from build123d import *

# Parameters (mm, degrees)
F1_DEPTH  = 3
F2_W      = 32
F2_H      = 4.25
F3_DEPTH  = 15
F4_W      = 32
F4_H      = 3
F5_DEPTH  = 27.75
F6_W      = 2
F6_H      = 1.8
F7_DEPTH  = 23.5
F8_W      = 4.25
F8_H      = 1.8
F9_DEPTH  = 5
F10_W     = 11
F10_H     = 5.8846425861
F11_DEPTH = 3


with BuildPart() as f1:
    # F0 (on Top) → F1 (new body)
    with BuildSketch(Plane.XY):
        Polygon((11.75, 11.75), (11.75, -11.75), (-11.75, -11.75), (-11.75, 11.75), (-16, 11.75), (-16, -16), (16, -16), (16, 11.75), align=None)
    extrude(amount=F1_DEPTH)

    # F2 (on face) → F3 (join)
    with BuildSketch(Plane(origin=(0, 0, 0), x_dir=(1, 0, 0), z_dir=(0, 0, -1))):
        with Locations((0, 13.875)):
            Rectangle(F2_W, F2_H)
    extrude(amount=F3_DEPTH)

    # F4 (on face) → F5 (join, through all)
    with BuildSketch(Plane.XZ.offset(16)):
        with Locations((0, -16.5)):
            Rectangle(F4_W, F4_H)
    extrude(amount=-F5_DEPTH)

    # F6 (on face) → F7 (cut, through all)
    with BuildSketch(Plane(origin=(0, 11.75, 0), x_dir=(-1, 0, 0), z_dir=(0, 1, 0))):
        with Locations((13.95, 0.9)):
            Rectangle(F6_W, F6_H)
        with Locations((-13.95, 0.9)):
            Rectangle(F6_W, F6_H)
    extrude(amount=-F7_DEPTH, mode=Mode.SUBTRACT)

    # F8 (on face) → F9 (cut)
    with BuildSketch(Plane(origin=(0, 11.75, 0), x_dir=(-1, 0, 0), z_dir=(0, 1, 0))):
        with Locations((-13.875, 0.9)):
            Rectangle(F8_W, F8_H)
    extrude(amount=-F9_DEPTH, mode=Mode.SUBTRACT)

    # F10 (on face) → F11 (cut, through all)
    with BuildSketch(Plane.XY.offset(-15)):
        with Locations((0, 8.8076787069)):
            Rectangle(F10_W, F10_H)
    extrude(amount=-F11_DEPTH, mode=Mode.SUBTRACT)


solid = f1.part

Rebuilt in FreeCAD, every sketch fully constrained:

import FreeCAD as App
import Part
import Sketcher

V = App.Vector
Q = App.Units.Quantity

doc = App.newDocument("Part")
params = doc.addObject("Spreadsheet::Sheet", "Params")
for row, (alias, value) in enumerate([
    ("sketch1_width", "32 mm"),
    ("sketch1_width2", "23.5 mm"),
    ("pad1_length", "3 mm"),
    ("sketch2_width", "32 mm"),
    ("sketch2_height", "4.25 mm"),
    ("pad2_length", "15 mm"),
    ("sketch3_width", "32 mm"),
    ("sketch3_height", "3 mm"),
    ("pad3_length", "27.75 mm"),
    ("sketch4_width", "2 mm"),
    ("sketch4_height", "1.8 mm"),
    ("pocket1_length", "23.5 mm"),
    ("sketch5_height", "1.8 mm"),
    ("sketch5_width", "4.25 mm"),
    ("pocket2_length", "5 mm"),
    ("sketch6_width", "11 mm"),
], start=1):
    params.set(f"A{row}", alias)
    params.set(f"B{row}", "=" + value)
    params.setAlias(f"B{row}", alias)

body = doc.addObject("PartDesign::Body", "Body")

sketch1 = body.newObject("Sketcher::SketchObject", "Sketch")
sketch1.AttachmentSupport = (doc.getObject("XY_Plane"), [""])
sketch1.MapMode = "FlatFace"
sketch1.addGeometry([
    Part.LineSegment(V(11.8, 11.8, 0), V(11.8, -11.8, 0)),
    Part.LineSegment(V(11.8, -11.8, 0), V(-11.8, -11.8, 0)),
    Part.LineSegment(V(-11.8, -11.8, 0), V(-11.8, 11.8, 0)),
    Part.LineSegment(V(-11.8, 11.8, 0), V(-16, 11.8, 0)),
    Part.LineSegment(V(-16, 11.8, 0), V(-16, -16, 0)),
    Part.LineSegment(V(-16, -16, 0), V(16, -16, 0)),
    Part.LineSegment(V(16, -16, 0), V(16, 11.8, 0)),
    Part.LineSegment(V(16, 11.8, 0), V(11.8, 11.8, 0)),
], False)
sketch1.addConstraint([
    Sketcher.Constraint("Coincident", 0, 2, 1, 1),
    Sketcher.Constraint("Coincident", 1, 2, 2, 1),
    Sketcher.Constraint("Coincident", 2, 2, 3, 1),
    Sketcher.Constraint("Coincident", 3, 2, 4, 1),
    Sketcher.Constraint("Coincident", 4, 2, 5, 1),
    Sketcher.Constraint("Coincident", 5, 2, 6, 1),
    Sketcher.Constraint("Coincident", 6, 2, 7, 1),
    Sketcher.Constraint("Coincident", 7, 2, 0, 1),
    Sketcher.Constraint("Vertical", 0),
    Sketcher.Constraint("Horizontal", 1),
    Sketcher.Constraint("Vertical", 2),
    Sketcher.Constraint("Horizontal", 3),
    Sketcher.Constraint("Vertical", 4),
    Sketcher.Constraint("Horizontal", 5),
    Sketcher.Constraint("Vertical", 6),
    Sketcher.Constraint("Horizontal", 7),
    Sketcher.Constraint("Symmetric", 0, 2, 2, 2, -1, 1),
    Sketcher.Constraint("Symmetric", 3, 2, 6, 2, -2),
    Sketcher.Constraint("Equal", 1, 0),
    Sketcher.Constraint("DistanceX", 5, 1, 5, 2, Q("32 mm")),
    Sketcher.Constraint("DistanceX", 1, 2, 1, 1, Q("23.5 mm")),
    Sketcher.Constraint("DistanceY", 4, 2, -1, 1, Q("16 mm")),
])
sketch1.setExpression("Constraints[19]", "Params.sketch1_width")
sketch1.setExpression("Constraints[20]", "Params.sketch1_width2")
pad1 = body.newObject("PartDesign::Pad", "Pad")
pad1.Profile = sketch1
pad1.setExpression("Length", "Params.pad1_length")

sketch2 = body.newObject("Sketcher::SketchObject", "Sketch001")
sketch2.AttachmentSupport = (doc.getObject("XY_Plane"), [""])
sketch2.MapMode = "FlatFace"
sketch2.addGeometry([
    Part.LineSegment(V(-16, -16, 0), V(-16, -11.8, 0)),
    Part.LineSegment(V(-16, -11.8, 0), V(16, -11.8, 0)),
    Part.LineSegment(V(16, -11.8, 0), V(16, -16, 0)),
    Part.LineSegment(V(16, -16, 0), V(-16, -16, 0)),
], False)
sketch2.addConstraint([
    Sketcher.Constraint("Coincident", 0, 2, 1, 1),
    Sketcher.Constraint("Coincident", 1, 2, 2, 1),
    Sketcher.Constraint("Coincident", 2, 2, 3, 1),
    Sketcher.Constraint("Coincident", 3, 2, 0, 1),
    Sketcher.Constraint("Vertical", 0),
    Sketcher.Constraint("Horizontal", 1),
    Sketcher.Constraint("Vertical", 2),
    Sketcher.Constraint("Horizontal", 3),
    Sketcher.Constraint("DistanceX", 1, 1, 1, 2, Q("32 mm")),
    Sketcher.Constraint("DistanceX", 0, 2, -1, 1, Q("16 mm")),
    Sketcher.Constraint("DistanceY", 2, 2, -1, 1, Q("16 mm")),
    Sketcher.Constraint("DistanceY", 0, 1, 0, 2, Q("4.25 mm")),
])
sketch2.setExpression("Constraints[8]", "Params.sketch2_width")
sketch2.setExpression("Constraints[11]", "Params.sketch2_height")
pad2 = body.newObject("PartDesign::Pad", "Pad001")
pad2.Profile = sketch2
pad2.setExpression("Length", "Params.pad2_length")
pad2.Reversed = True

sketch3 = body.newObject("Sketcher::SketchObject", "Sketch002")
sketch3.AttachmentSupport = (doc.getObject("XZ_Plane"), [""])
sketch3.MapMode = "FlatFace"
sketch3.AttachmentOffset = App.Placement(V(0, 0, 16), App.Rotation())
sketch3.addGeometry([
    Part.LineSegment(V(-16, -15, 0), V(-16, -18, 0)),
    Part.LineSegment(V(-16, -18, 0), V(16, -18, 0)),
    Part.LineSegment(V(16, -18, 0), V(16, -15, 0)),
    Part.LineSegment(V(16, -15, 0), V(-16, -15, 0)),
], False)
sketch3.addConstraint([
    Sketcher.Constraint("Coincident", 0, 2, 1, 1),
    Sketcher.Constraint("Coincident", 1, 2, 2, 1),
    Sketcher.Constraint("Coincident", 2, 2, 3, 1),
    Sketcher.Constraint("Coincident", 3, 2, 0, 1),
    Sketcher.Constraint("Vertical", 0),
    Sketcher.Constraint("Horizontal", 1),
    Sketcher.Constraint("Vertical", 2),
    Sketcher.Constraint("Horizontal", 3),
    Sketcher.Constraint("DistanceX", 1, 1, 1, 2, Q("32 mm")),
    Sketcher.Constraint("DistanceY", 0, 2, 0, 1, Q("3 mm")),
    Sketcher.Constraint("DistanceX", 0, 2, -1, 1, Q("16 mm")),
    Sketcher.Constraint("DistanceY", 0, 2, -1, 1, Q("18 mm")),
])
sketch3.setExpression("Constraints[8]", "Params.sketch3_width")
sketch3.setExpression("Constraints[9]", "Params.sketch3_height")
pad3 = body.newObject("PartDesign::Pad", "Pad002")
pad3.Profile = sketch3
pad3.setExpression("Length", "Params.pad3_length")
pad3.Reversed = True

sketch4 = body.newObject("Sketcher::SketchObject", "Sketch003")
sketch4.AttachmentSupport = (doc.getObject("XZ_Plane"), [""])
sketch4.MapMode = "FlatFace"
sketch4.AttachmentOffset = App.Placement(V(0, 0, -11.75), App.Rotation())
sketch4.addGeometry([
    Part.LineSegment(V(-12.9, 1.8, 0), V(-12.9, 0, 0)),
    Part.LineSegment(V(-12.9, 0, 0), V(-14.9, 0, 0)),
    Part.LineSegment(V(-14.9, 0, 0), V(-14.9, 1.8, 0)),
    Part.LineSegment(V(-14.9, 1.8, 0), V(-12.9, 1.8, 0)),
    Part.LineSegment(V(14.9, 1.8, 0), V(14.9, 0, 0)),
    Part.LineSegment(V(14.9, 0, 0), V(12.9, 0, 0)),
    Part.LineSegment(V(12.9, 0, 0), V(12.9, 1.8, 0)),
    Part.LineSegment(V(12.9, 1.8, 0), V(14.9, 1.8, 0)),
], False)
sketch4.addConstraint([
    Sketcher.Constraint("Coincident", 0, 2, 1, 1),
    Sketcher.Constraint("Coincident", 1, 2, 2, 1),
    Sketcher.Constraint("Coincident", 2, 2, 3, 1),
    Sketcher.Constraint("Coincident", 3, 2, 0, 1),
    Sketcher.Constraint("Coincident", 4, 2, 5, 1),
    Sketcher.Constraint("Coincident", 5, 2, 6, 1),
    Sketcher.Constraint("Coincident", 6, 2, 7, 1),
    Sketcher.Constraint("Coincident", 7, 2, 4, 1),
    Sketcher.Constraint("Vertical", 0),
    Sketcher.Constraint("Horizontal", 1),
    Sketcher.Constraint("Vertical", 2),
    Sketcher.Constraint("Horizontal", 3),
    Sketcher.Constraint("Vertical", 4),
    Sketcher.Constraint("Horizontal", 5),
    Sketcher.Constraint("Vertical", 6),
    Sketcher.Constraint("Horizontal", 7),
    Sketcher.Constraint("Symmetric", 1, 2, 4, 2, -1, 1),
    Sketcher.Constraint("Symmetric", 0, 2, 5, 2, -2),
    Sketcher.Constraint("Horizontal", 3, 2, 6, 2),
    Sketcher.Constraint("DistanceX", 1, 2, 1, 1, Q("2 mm")),
    Sketcher.Constraint("DistanceY", 0, 2, 0, 1, Q("1.8 mm")),
    Sketcher.Constraint("DistanceX", 0, 2, 4, 2, Q("27.9 mm")),
])
sketch4.setExpression("Constraints[19]", "Params.sketch4_width")
sketch4.setExpression("Constraints[20]", "Params.sketch4_height")
pocket1 = body.newObject("PartDesign::Pocket", "Pocket")
pocket1.Profile = sketch4
pocket1.setExpression("Length", "Params.pocket1_length")
pocket1.Reversed = True

sketch5 = body.newObject("Sketcher::SketchObject", "Sketch004")
sketch5.AttachmentSupport = (doc.getObject("XZ_Plane"), [""])
sketch5.MapMode = "FlatFace"
sketch5.AttachmentOffset = App.Placement(V(0, 0, -11.75), App.Rotation())
sketch5.addGeometry([
    Part.LineSegment(V(16, 1.8, 0), V(16, 0, 0)),
    Part.LineSegment(V(16, 0, 0), V(11.8, 0, 0)),
    Part.LineSegment(V(11.8, 0, 0), V(11.8, 1.8, 0)),
    Part.LineSegment(V(11.8, 1.8, 0), V(16, 1.8, 0)),
], False)
sketch5.addConstraint([
    Sketcher.Constraint("Coincident", 0, 2, 1, 1),
    Sketcher.Constraint("Coincident", 1, 2, 2, 1),
    Sketcher.Constraint("Coincident", 2, 2, 3, 1),
    Sketcher.Constraint("Coincident", 3, 2, 0, 1),
    Sketcher.Constraint("Vertical", 0),
    Sketcher.Constraint("Horizontal", 1),
    Sketcher.Constraint("Vertical", 2),
    Sketcher.Constraint("Horizontal", 3),
    Sketcher.Constraint("PointOnObject", 0, 2, -1),
    Sketcher.Constraint("DistanceY", 0, 2, 0, 1, Q("1.8 mm")),
    Sketcher.Constraint("DistanceX", -1, 1, 0, 2, Q("16 mm")),
    Sketcher.Constraint("DistanceX", 1, 2, 1, 1, Q("4.25 mm")),
])
sketch5.setExpression("Constraints[9]", "Params.sketch5_height")
sketch5.setExpression("Constraints[11]", "Params.sketch5_width")
pocket2 = body.newObject("PartDesign::Pocket", "Pocket001")
pocket2.Profile = sketch5
pocket2.setExpression("Length", "Params.pocket2_length")
pocket2.Reversed = True

sketch6 = body.newObject("Sketcher::SketchObject", "Sketch005")
sketch6.AttachmentSupport = (doc.getObject("XY_Plane"), [""])
sketch6.MapMode = "FlatFace"
sketch6.AttachmentOffset = App.Placement(V(0, 0, -15), App.Rotation())
sketch6.addGeometry([
    Part.LineSegment(V(-6, 12, 0), V(-6, 6, 0)),
    Part.LineSegment(V(-6, 6, 0), V(6, 6, 0)),
    Part.LineSegment(V(6, 6, 0), V(6, 12, 0)),
    Part.LineSegment(V(6, 12, 0), V(-6, 12, 0)),
], False)
sketch6.addConstraint([
    Sketcher.Constraint("Coincident", 0, 2, 1, 1),
    Sketcher.Constraint("Coincident", 1, 2, 2, 1),
    Sketcher.Constraint("Coincident", 2, 2, 3, 1),
    Sketcher.Constraint("Coincident", 3, 2, 0, 1),
    Sketcher.Constraint("Vertical", 0),
    Sketcher.Constraint("Horizontal", 1),
    Sketcher.Constraint("Vertical", 2),
    Sketcher.Constraint("Horizontal", 3),
    Sketcher.Constraint("DistanceX", 1, 1, 1, 2, Q("11 mm")),
    Sketcher.Constraint("DistanceX", 0, 2, -1, 1, Q("5.5 mm")),
    Sketcher.Constraint("DistanceY", -1, 1, 2, 2, Q("11.75 mm")),
    Sketcher.Constraint("DistanceY", 0, 2, 0, 1, Q("5.884643 mm")),
])
sketch6.setExpression("Constraints[8]", "Params.sketch6_width")
pocket3 = body.newObject("PartDesign::Pocket", "Pocket002")
pocket3.Profile = sketch6
pocket3.Type = "ThroughAll"

doc.recompute()
